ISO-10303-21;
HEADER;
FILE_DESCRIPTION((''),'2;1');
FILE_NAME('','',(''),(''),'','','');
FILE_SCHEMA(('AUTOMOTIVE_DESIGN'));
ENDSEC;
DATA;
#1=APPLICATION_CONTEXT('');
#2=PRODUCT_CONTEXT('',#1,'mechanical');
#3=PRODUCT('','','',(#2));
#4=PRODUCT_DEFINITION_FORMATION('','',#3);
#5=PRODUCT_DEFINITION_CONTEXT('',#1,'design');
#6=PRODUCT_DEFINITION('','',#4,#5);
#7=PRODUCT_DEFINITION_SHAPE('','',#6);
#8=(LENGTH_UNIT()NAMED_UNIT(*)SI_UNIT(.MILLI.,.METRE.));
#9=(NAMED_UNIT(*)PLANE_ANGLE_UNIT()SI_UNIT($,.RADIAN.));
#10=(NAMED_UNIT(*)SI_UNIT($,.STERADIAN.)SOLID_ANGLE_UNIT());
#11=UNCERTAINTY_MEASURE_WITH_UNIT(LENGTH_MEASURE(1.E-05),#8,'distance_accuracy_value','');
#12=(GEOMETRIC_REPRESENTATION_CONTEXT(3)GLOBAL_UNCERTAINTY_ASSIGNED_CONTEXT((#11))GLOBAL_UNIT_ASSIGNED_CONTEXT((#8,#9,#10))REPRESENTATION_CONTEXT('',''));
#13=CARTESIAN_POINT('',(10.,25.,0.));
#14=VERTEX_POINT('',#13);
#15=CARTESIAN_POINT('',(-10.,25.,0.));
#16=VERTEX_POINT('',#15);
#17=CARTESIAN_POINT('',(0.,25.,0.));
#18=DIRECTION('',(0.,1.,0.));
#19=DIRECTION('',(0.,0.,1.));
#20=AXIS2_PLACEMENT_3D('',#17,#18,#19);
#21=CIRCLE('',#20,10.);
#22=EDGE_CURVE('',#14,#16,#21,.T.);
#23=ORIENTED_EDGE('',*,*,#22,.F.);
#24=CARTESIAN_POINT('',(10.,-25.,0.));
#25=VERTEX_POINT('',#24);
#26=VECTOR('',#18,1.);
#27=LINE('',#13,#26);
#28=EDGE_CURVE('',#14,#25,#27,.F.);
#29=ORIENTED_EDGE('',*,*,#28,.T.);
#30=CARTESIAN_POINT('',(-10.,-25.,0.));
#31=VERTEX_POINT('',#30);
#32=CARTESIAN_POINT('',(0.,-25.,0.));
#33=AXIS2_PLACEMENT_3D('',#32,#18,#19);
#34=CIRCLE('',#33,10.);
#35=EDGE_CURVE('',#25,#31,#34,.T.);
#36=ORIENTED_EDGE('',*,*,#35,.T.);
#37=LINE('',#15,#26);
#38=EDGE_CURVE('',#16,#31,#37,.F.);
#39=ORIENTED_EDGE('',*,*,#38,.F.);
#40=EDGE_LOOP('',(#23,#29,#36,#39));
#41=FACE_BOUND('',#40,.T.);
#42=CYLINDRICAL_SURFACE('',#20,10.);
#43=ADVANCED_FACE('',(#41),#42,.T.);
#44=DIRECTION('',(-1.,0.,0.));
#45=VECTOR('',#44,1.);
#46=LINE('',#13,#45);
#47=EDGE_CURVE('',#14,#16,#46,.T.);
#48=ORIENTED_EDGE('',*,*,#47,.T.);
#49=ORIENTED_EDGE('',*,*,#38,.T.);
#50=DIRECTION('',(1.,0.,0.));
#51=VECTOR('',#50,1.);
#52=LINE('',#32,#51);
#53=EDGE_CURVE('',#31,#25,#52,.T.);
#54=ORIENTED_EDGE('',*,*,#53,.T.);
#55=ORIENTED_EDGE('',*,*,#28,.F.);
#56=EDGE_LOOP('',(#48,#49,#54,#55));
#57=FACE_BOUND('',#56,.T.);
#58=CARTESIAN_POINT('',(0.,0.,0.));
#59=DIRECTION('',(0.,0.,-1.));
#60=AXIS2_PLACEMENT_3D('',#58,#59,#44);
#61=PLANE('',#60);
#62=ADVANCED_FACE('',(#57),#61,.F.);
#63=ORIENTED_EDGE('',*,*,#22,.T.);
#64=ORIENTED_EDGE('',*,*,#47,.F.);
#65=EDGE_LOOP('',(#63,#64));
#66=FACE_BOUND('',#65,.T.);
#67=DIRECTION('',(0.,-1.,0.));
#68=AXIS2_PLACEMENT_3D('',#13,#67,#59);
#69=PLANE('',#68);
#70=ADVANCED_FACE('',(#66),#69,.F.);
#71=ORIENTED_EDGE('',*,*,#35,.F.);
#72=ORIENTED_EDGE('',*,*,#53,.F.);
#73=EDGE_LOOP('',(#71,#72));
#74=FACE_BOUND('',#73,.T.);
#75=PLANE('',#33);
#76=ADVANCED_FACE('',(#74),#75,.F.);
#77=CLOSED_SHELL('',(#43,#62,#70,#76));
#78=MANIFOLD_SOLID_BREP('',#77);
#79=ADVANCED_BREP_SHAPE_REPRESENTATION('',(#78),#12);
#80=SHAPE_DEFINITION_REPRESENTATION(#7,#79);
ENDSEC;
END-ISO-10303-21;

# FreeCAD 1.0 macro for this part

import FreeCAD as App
import Part
import Sketcher
from FreeCAD import Vector


def add_polygon(sketch, points):
    """Adds a closed chain of lines whose ends are joined by coincident constraints."""
    first, n = sketch.GeometryCount, len(points)
    for a, b in zip(points, points[1:] + points[:1]):
        sketch.addGeometry(Part.LineSegment(App.Vector(*a, 0), App.Vector(*b, 0)), False)
    for i in range(n):
        sketch.addConstraint(Sketcher.Constraint("Coincident", first + i, 2, first + (i + 1) % n, 1))

doc = App.newDocument("Part")
body = doc.addObject("PartDesign::Body", "Body")

sketch1 = body.newObject("Sketcher::SketchObject", "Sketch")
sketch1.AttachmentSupport = (doc.getObject("XY_Plane"), [""])
sketch1.MapMode = "FlatFace"
add_polygon(sketch1, [(0, 25), (0, -25), (10, -25), (10, 25)])
sketch1.addConstraint(Sketcher.Constraint("Vertical", 0))
sketch1.addConstraint(Sketcher.Constraint("Horizontal", 1))
sketch1.addConstraint(Sketcher.Constraint("Vertical", 2))
sketch1.addConstraint(Sketcher.Constraint("Horizontal", 3))
sketch1.addConstraint(Sketcher.Constraint("Symmetric", 0, 2, 3, 2, -1, 1))
sketch1.addConstraint(Sketcher.Constraint("DistanceX", 1, 1, 1, 2, 10.0))
sketch1.addConstraint(Sketcher.Constraint("DistanceY", 0, 2, 0, 1, 50.0))
revolution = body.newObject("PartDesign::Revolution", "Revolution")
revolution.Profile = sketch1
revolution.ReferenceAxis = (sketch1, ["V_Axis"])
revolution.Angle = 180

doc.recompute()
